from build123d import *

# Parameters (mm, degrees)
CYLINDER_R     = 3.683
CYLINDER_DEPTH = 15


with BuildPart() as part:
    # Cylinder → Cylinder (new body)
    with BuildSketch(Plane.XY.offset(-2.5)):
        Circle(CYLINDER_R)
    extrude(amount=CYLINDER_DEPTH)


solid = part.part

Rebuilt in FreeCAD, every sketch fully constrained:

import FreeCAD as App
import Part
import Sketcher
from FreeCAD import Vector

doc = App.newDocument("Part")
params = doc.addObject("Spreadsheet::Sheet", "Params")
for row, (alias, value) in enumerate([
    ("pad1_length", "15 mm"),
], start=1):
    params.set(f"A{row}", alias)
    params.set(f"B{row}", "=" + value)
    params.setAlias(f"B{row}", alias)

body = doc.addObject("PartDesign::Body", "Body")

sketch1 = doc.addObject("Sketcher::SketchObject", "Sketch")
body.addObject(sketch1)
sketch1.AttachmentSupport = (doc.XY_Plane, [""])
sketch1.MapMode = "FlatFace"
sketch1.AttachmentOffset = App.Placement(Vector(0, 0, -2.5), App.Rotation())
sketch1.addGeometry(Part.Circle(Vector(0, 0, 0), Vector(0, 0, 1), 3.7), False)
sketch1.addConstraint([
    Sketcher.Constraint("Coincident", 0, 3, -1, 1),
    Sketcher.Constraint("Diameter", 0, 7.366),
])
pad1 = doc.addObject("PartDesign::Pad", "Pad")
body.addObject(pad1)
pad1.Profile = sketch1
pad1.setExpression("Length", "Params.pad1_length")

doc.recompute()
